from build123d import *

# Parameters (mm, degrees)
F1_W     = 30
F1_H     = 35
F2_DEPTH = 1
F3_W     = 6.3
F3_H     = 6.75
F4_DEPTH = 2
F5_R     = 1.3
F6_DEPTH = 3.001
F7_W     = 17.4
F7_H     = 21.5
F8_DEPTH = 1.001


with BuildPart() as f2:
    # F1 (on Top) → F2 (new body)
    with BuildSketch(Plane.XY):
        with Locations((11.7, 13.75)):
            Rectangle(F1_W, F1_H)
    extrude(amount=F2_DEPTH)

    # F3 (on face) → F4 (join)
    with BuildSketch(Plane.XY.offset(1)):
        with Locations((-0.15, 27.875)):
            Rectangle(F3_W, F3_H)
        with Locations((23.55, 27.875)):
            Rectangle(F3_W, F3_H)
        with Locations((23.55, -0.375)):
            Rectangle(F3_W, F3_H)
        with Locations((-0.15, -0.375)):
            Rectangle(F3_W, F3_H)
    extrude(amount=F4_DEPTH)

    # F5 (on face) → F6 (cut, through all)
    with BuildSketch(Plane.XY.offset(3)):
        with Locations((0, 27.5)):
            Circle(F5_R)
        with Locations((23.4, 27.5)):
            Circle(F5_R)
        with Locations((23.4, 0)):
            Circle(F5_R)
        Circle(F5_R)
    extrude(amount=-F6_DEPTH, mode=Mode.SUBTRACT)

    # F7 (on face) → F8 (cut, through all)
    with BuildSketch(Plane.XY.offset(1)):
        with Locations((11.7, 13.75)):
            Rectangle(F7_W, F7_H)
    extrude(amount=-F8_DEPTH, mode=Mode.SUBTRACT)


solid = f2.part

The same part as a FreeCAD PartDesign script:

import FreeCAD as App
import Part
import Sketcher
from FreeCAD import Vector
Q = App.Units.Quantity


def add_polygon(sketch, points):
    """Adds a closed chain of lines whose ends are joined by coincident constraints."""
    first, n = sketch.GeometryCount, len(points)
    for a, b in zip(points, points[1:] + points[:1]):
        sketch.addGeometry(Part.LineSegment(App.Vector(*a, 0), App.Vector(*b, 0)), False)
    for i in range(n):
        sketch.addConstraint(Sketcher.Constraint("Coincident", first + i, 2, first + (i + 1) % n, 1))

doc = App.newDocument("Part")
body = doc.addObject("PartDesign::Body", "Body")

sketch1 = body.newObject("Sketcher::SketchObject", "Sketch")
sketch1.AttachmentSupport = (doc.getObject("XY_Plane"), [""])
sketch1.MapMode = "FlatFace"
add_polygon(sketch1, [(-3.3, 31.25), (-3.3, -3.75), (26.7, -3.75), (26.7, 31.25)])
sketch1.addConstraint([
    Sketcher.Constraint("Vertical", 0),
    Sketcher.Constraint("Horizontal", 1),
    Sketcher.Constraint("Vertical", 2),
    Sketcher.Constraint("Horizontal", 3),
    Sketcher.Constraint("DistanceX", 1, 1, 1, 2, Q("30 mm")),
    Sketcher.Constraint("DistanceY", 0, 2, 0, 1, Q("35 mm")),
    Sketcher.Constraint("DistanceX", 0, 2, -1, 1, Q("3.3 mm")),
    Sketcher.Constraint("DistanceY", 0, 2, -1, 1, Q("3.75 mm")),
])
pad1 = body.newObject("PartDesign::Pad", "Pad")
pad1.Profile = sketch1
pad1.Length = 1

sketch2 = body.newObject("Sketcher::SketchObject", "Sketch001")
sketch2.AttachmentSupport = (doc.getObject("XY_Plane"), [""])
sketch2.MapMode = "FlatFace"
sketch2.AttachmentOffset = App.Placement(Vector(0, 0, 1), App.Rotation())
add_polygon(sketch2, [(-3.3, 31.25), (-3.3, 24.5), (3, 24.5), (3, 31.25)])
add_polygon(sketch2, [(20.4, 31.25), (20.4, 24.5), (26.7, 24.5), (26.7, 31.25)])
add_polygon(sketch2, [(20.4, 3), (20.4, -3.75), (26.7, -3.75), (26.7, 3)])
add_polygon(sketch2, [(-3.3, 3), (-3.3, -3.75), (3, -3.75), (3, 3)])
sketch2.addConstraint([
    Sketcher.Constraint("Vertical", 0),
    Sketcher.Constraint("Horizontal", 1),
    Sketcher.Constraint("Vertical", 2),
    Sketcher.Constraint("Horizontal", 3),
    Sketcher.Constraint("Vertical", 4),
    Sketcher.Constraint("Horizontal", 5),
    Sketcher.Constraint("Vertical", 6),
    Sketcher.Constraint("Horizontal", 7),
    Sketcher.Constraint("Vertical", 8),
    Sketcher.Constraint("Horizontal", 9),
    Sketcher.Constraint("Vertical", 10),
    Sketcher.Constraint("Horizontal", 11),
    Sketcher.Constraint("Vertical", 12),
    Sketcher.Constraint("Horizontal", 13),
    Sketcher.Constraint("Vertical", 14),
    Sketcher.Constraint("Horizontal", 15),
    Sketcher.Constraint("Horizontal", 1, 2, 4, 2),
    Sketcher.Constraint("Horizontal", 3, 2, 6, 2),
    Sketcher.Constraint("Horizontal", 9, 2, 12, 2),
    Sketcher.Constraint("Horizontal", 11, 2, 14, 2),
    Sketcher.Constraint("Vertical", 7, 2, 8, 2),
    Sketcher.Constraint("Vertical", 6, 2, 9, 2),
    Sketcher.Constraint("Vertical", 3, 2, 12, 2),
    Sketcher.Constraint("Vertical", 2, 2, 13, 2),
    Sketcher.Constraint("Equal", 3, 5),
    Sketcher.Constraint("Equal", 6, 8),
    Sketcher.Constraint("DistanceX", 1, 1, 1, 2, Q("6.3 mm")),
    Sketcher.Constraint("DistanceX", -1, 1, 1, 2, Q("3 mm")),
    Sketcher.Constraint("DistanceY", -1, 1, 10, 2, Q("3 mm")),
    Sketcher.Constraint("DistanceX", 0, 2, 5, 2, Q("30 mm")),
    Sketcher.Constraint("DistanceY", 8, 2, 7, 2, Q("35 mm")),
    Sketcher.Constraint("DistanceY", 0, 2, 0, 1, Q("6.75 mm")),
])
pad2 = body.newObject("PartDesign::Pad", "Pad001")
pad2.Profile = sketch2
pad2.Length = 2

sketch3 = body.newObject("Sketcher::SketchObject", "Sketch002")
sketch3.AttachmentSupport = (doc.getObject("XY_Plane"), [""])
sketch3.MapMode = "FlatFace"
sketch3.AttachmentOffset = App.Placement(Vector(0, 0, 3), App.Rotation())
sketch3.addGeometry([
    Part.Circle(Vector(0, 27.5, 0), Vector(0, 0, 1), 1.3),
    Part.Circle(Vector(23.4, 27.5, 0), Vector(0, 0, 1), 1.3),
    Part.Circle(Vector(23.4, 0, 0), Vector(0, 0, 1), 1.3),
    Part.Circle(Vector(0, 0, 0), Vector(0, 0, 1), 1.3),
], False)
sketch3.addConstraint([
    Sketcher.Constraint("Coincident", 3, 3, -1, 1),
    Sketcher.Constraint("Equal", 0, 1),
    Sketcher.Constraint("Equal", 1, 2),
    Sketcher.Constraint("Equal", 2, 3),
    Sketcher.Constraint("PointOnObject", 0, 3, -2),
    Sketcher.Constraint("PointOnObject", 2, 3, -1),
    Sketcher.Constraint("Horizontal", 0, 3, 1, 3),
    Sketcher.Constraint("Vertical", 1, 3, 2, 3),
    Sketcher.Constraint("Diameter", 0, Q("2.6 mm")),
    Sketcher.Constraint("DistanceY", -1, 1, 0, 3, Q("27.5 mm")),
    Sketcher.Constraint("DistanceX", -1, 1, 1, 3, Q("23.4 mm")),
])
pocket1 = body.newObject("PartDesign::Pocket", "Pocket")
pocket1.Profile = sketch3
pocket1.Type = "ThroughAll"

sketch4 = body.newObject("Sketcher::SketchObject", "Sketch003")
sketch4.AttachmentSupport = (doc.getObject("XY_Plane"), [""])
sketch4.MapMode = "FlatFace"
sketch4.AttachmentOffset = App.Placement(Vector(0, 0, 1), App.Rotation())
add_polygon(sketch4, [(3, 24.5), (3, 3), (20.4, 3), (20.4, 24.5)])
sketch4.addConstraint([
    Sketcher.Constraint("Vertical", 0),
    Sketcher.Constraint("Horizontal", 1),
    Sketcher.Constraint("Vertical", 2),
    Sketcher.Constraint("Horizontal", 3),
    Sketcher.Constraint("DistanceX", 1, 1, 1, 2, Q("17.4 mm")),
    Sketcher.Constraint("DistanceY", 0, 2, 0, 1, Q("21.5 mm")),
    Sketcher.Constraint("DistanceX", -1, 1, 0, 2, Q("3 mm")),
    Sketcher.Constraint("DistanceY", -1, 1, 0, 2, Q("3 mm")),
])
pocket2 = body.newObject("PartDesign::Pocket", "Pocket001")
pocket2.Profile = sketch4
pocket2.Type = "ThroughAll"

doc.recompute()
